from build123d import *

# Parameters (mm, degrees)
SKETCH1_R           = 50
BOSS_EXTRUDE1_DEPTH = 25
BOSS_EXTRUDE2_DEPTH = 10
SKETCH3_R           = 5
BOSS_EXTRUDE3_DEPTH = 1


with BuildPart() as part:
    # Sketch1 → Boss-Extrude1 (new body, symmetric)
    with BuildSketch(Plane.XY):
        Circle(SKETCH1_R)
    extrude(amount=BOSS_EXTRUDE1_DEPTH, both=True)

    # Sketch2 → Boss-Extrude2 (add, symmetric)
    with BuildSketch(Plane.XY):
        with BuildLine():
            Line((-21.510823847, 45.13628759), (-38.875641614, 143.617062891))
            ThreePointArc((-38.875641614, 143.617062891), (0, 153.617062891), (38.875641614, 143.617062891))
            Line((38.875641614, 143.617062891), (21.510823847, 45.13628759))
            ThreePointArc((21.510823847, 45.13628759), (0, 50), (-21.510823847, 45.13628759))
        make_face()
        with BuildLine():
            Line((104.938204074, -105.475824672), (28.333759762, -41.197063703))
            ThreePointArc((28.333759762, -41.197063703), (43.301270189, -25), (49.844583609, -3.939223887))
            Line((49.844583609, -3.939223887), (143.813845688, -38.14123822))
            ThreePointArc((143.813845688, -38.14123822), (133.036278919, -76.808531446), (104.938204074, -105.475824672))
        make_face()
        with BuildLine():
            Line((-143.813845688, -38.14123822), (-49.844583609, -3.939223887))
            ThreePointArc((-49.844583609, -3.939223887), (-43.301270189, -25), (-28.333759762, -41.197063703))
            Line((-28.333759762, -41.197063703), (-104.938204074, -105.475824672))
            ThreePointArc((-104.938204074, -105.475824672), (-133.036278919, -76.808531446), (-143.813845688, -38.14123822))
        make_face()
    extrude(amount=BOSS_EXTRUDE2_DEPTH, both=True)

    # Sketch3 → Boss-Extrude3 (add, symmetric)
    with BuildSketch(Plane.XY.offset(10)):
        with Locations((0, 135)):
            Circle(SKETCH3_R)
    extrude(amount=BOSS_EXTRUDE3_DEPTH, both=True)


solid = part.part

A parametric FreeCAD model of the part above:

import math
import FreeCAD as App
import Part
import Sketcher
Q = App.Units.Quantity

doc = App.newDocument("Part")
body = doc.addObject("PartDesign::Body", "Body")

sketch1 = doc.addObject("Sketcher::SketchObject", "Sketch")
body.addObject(sketch1)
sketch1.AttachmentSupport = (doc.XY_Plane, [""])
sketch1.MapMode = "FlatFace"
sketch1.addGeometry(Part.Circle(App.Vector(0, 0, 0), App.Vector(0, 0, 1), 50), False)
sketch1.addConstraint(Sketcher.Constraint("Coincident", 0, 3, -1, 1))
sketch1.addConstraint(Sketcher.Constraint("Diameter", 0, Q("100 mm")))
pad1 = doc.addObject("PartDesign::Pad", "Pad")
body.addObject(pad1)
pad1.Profile = sketch1
pad1.Length = 50
pad1.Midplane = True

sketch2 = doc.addObject("Sketcher::SketchObject", "Sketch001")
body.addObject(sketch2)
sketch2.AttachmentSupport = (doc.XY_Plane, [""])
sketch2.MapMode = "FlatFace"
sketch2.addGeometry(Part.LineSegment(App.Vector(-39, 144, 0), App.Vector(-22, 45, 0)), False)
sketch2.addGeometry(Part.ArcOfCircle(Part.Circle(App.Vector(0, 0, 0), App.Vector(0, 0, 1), 50), math.radians(65), math.radians(115)), False)
sketch2.addGeometry(Part.LineSegment(App.Vector(22, 45, 0), App.Vector(39, 144, 0)), False)
sketch2.addGeometry(Part.ArcOfCircle(Part.Circle(App.Vector(0, 73, 0), App.Vector(0, 0, 1), 81), math.radians(61), math.radians(119)), False)
sketch2.addGeometry(Part.LineSegment(App.Vector(28, -41, 0), App.Vector(105, -105, 0)), False)
sketch2.addGeometry(Part.ArcOfCircle(Part.Circle(App.Vector(63, -37, 0), App.Vector(0, 0, 1), 81), math.radians(-59), math.radians(-1)), False)
sketch2.addGeometry(Part.LineSegment(App.Vector(144, -38, 0), App.Vector(50, -4, 0)), False)
sketch2.addGeometry(Part.ArcOfCircle(Part.Circle(App.Vector(0, 0, 0), App.Vector(0, 0, 1), 50), math.radians(-55), math.radians(-5)), False)
sketch2.addGeometry(Part.LineSegment(App.Vector(-50, -4, 0), App.Vector(-144, -38, 0)), False)
sketch2.addGeometry(Part.ArcOfCircle(Part.Circle(App.Vector(-63, -37, 0), App.Vector(0, 0, 1), 81), math.radians(-179), math.radians(-121)), False)
sketch2.addGeometry(Part.LineSegment(App.Vector(-105, -105, 0), App.Vector(-28, -41, 0)), False)
sketch2.addGeometry(Part.ArcOfCircle(Part.Circle(App.Vector(0, 0, 0), App.Vector(0, 0, 1), 50), math.radians(-175), math.radians(-125)), False)
sketch2.addConstraint(Sketcher.Constraint("Coincident", 0, 2, 1, 2))
sketch2.addConstraint(Sketcher.Constraint("Coincident", 1, 1, 2, 1))
sketch2.addConstraint(Sketcher.Constraint("Coincident", 2, 2, 3, 1))
sketch2.addConstraint(Sketcher.Constraint("Coincident", 3, 2, 0, 1))
sketch2.addConstraint(Sketcher.Constraint("Coincident", 4, 2, 5, 1))
sketch2.addConstraint(Sketcher.Constraint("Coincident", 5, 2, 6, 1))
sketch2.addConstraint(Sketcher.Constraint("Coincident", 6, 2, 7, 2))
sketch2.addConstraint(Sketcher.Constraint("Coincident", 7, 1, 4, 1))
sketch2.addConstraint(Sketcher.Constraint("Coincident", 8, 2, 9, 1))
sketch2.addConstraint(Sketcher.Constraint("Coincident", 9, 2, 10, 1))
sketch2.addConstraint(Sketcher.Constraint("Coincident", 10, 2, 11, 2))
sketch2.addConstraint(Sketcher.Constraint("Coincident", 11, 1, 8, 1))
sketch2.addConstraint(Sketcher.Constraint("Coincident", 1, 3, -1, 1))
sketch2.addConstraint(Sketcher.Constraint("Coincident", 7, 3, -1, 1))
sketch2.addConstraint(Sketcher.Constraint("Coincident", 11, 3, -1, 1))
sketch2.addConstraint(Sketcher.Constraint("Equal", 3, 5))
sketch2.addConstraint(Sketcher.Constraint("Equal", 1, 7))
sketch2.addConstraint(Sketcher.Constraint("Equal", 5, 9))
sketch2.addConstraint(Sketcher.Constraint("Equal", 7, 11))
sketch2.addConstraint(Sketcher.Constraint("Symmetric", 5, 3, 9, 3, -2))
sketch2.addConstraint(Sketcher.Constraint("Symmetric", 2, 2, 3, 2, -2))
sketch2.addConstraint(Sketcher.Constraint("Horizontal", 0, 2, 1, 1))
sketch2.addConstraint(Sketcher.Constraint("Horizontal", 5, 2, 8, 2))
sketch2.addConstraint(Sketcher.Constraint("Horizontal", 4, 2, 9, 2))
sketch2.addConstraint(Sketcher.Constraint("Horizontal", 7, 1, 10, 2))
sketch2.addConstraint(Sketcher.Constraint("Horizontal", 6, 2, 11, 1))
sketch2.addConstraint(Sketcher.Constraint("Equal", 2, 4))
sketch2.addConstraint(Sketcher.Constraint("Equal", 4, 6))
sketch2.addConstraint(Sketcher.Constraint("Radius", 1, Q("50 mm")))
sketch2.addConstraint(Sketcher.Constraint("Angle", 0, Q("-80 deg")))
sketch2.addConstraint(Sketcher.Constraint("Angle", 4, Q("-40 deg")))
sketch2.addConstraint(Sketcher.Constraint("Angle", 6, Q("160 deg")))
sketch2.addConstraint(Sketcher.Constraint("Distance", 0, Q("100 mm")))
sketch2.addConstraint(Sketcher.Constraint("Radius", 3, Q("80.565776 mm")))
sketch2.addConstraint(Sketcher.Constraint("DistanceY", 0, 2, 3, 3, Q("27.915 mm")))
sketch2.addConstraint(Sketcher.Constraint("DistanceX", -1, 1, 5, 3, Q("63.264271 mm")))
sketch2.addConstraint(Sketcher.Constraint("DistanceX", -1, 1, 7, 1, Q("28.33376 mm")))
pad2 = doc.addObject("PartDesign::Pad", "Pad001")
body.addObject(pad2)
pad2.Profile = sketch2
pad2.Length = 20
pad2.Midplane = True

sketch3 = doc.addObject("Sketcher::SketchObject", "Sketch002")
body.addObject(sketch3)
sketch3.AttachmentSupport = (doc.XY_Plane, [""])
sketch3.MapMode = "FlatFace"
sketch3.AttachmentOffset = App.Placement(App.Vector(0, 0, 10), App.Rotation())
sketch3.addGeometry(Part.Circle(App.Vector(0, 135, 0), App.Vector(0, 0, 1), 5), False)
sketch3.addConstraint(Sketcher.Constraint("PointOnObject", 0, 3, -2))
sketch3.addConstraint(Sketcher.Constraint("Diameter", 0, Q("10 mm")))
sketch3.addConstraint(Sketcher.Constraint("DistanceY", -1, 1, 0, 3, Q("135 mm")))
pad3 = doc.addObject("PartDesign::Pad", "Pad002")
body.addObject(pad3)
pad3.Profile = sketch3
pad3.Length = 2
pad3.Midplane = True

doc.recompute()
